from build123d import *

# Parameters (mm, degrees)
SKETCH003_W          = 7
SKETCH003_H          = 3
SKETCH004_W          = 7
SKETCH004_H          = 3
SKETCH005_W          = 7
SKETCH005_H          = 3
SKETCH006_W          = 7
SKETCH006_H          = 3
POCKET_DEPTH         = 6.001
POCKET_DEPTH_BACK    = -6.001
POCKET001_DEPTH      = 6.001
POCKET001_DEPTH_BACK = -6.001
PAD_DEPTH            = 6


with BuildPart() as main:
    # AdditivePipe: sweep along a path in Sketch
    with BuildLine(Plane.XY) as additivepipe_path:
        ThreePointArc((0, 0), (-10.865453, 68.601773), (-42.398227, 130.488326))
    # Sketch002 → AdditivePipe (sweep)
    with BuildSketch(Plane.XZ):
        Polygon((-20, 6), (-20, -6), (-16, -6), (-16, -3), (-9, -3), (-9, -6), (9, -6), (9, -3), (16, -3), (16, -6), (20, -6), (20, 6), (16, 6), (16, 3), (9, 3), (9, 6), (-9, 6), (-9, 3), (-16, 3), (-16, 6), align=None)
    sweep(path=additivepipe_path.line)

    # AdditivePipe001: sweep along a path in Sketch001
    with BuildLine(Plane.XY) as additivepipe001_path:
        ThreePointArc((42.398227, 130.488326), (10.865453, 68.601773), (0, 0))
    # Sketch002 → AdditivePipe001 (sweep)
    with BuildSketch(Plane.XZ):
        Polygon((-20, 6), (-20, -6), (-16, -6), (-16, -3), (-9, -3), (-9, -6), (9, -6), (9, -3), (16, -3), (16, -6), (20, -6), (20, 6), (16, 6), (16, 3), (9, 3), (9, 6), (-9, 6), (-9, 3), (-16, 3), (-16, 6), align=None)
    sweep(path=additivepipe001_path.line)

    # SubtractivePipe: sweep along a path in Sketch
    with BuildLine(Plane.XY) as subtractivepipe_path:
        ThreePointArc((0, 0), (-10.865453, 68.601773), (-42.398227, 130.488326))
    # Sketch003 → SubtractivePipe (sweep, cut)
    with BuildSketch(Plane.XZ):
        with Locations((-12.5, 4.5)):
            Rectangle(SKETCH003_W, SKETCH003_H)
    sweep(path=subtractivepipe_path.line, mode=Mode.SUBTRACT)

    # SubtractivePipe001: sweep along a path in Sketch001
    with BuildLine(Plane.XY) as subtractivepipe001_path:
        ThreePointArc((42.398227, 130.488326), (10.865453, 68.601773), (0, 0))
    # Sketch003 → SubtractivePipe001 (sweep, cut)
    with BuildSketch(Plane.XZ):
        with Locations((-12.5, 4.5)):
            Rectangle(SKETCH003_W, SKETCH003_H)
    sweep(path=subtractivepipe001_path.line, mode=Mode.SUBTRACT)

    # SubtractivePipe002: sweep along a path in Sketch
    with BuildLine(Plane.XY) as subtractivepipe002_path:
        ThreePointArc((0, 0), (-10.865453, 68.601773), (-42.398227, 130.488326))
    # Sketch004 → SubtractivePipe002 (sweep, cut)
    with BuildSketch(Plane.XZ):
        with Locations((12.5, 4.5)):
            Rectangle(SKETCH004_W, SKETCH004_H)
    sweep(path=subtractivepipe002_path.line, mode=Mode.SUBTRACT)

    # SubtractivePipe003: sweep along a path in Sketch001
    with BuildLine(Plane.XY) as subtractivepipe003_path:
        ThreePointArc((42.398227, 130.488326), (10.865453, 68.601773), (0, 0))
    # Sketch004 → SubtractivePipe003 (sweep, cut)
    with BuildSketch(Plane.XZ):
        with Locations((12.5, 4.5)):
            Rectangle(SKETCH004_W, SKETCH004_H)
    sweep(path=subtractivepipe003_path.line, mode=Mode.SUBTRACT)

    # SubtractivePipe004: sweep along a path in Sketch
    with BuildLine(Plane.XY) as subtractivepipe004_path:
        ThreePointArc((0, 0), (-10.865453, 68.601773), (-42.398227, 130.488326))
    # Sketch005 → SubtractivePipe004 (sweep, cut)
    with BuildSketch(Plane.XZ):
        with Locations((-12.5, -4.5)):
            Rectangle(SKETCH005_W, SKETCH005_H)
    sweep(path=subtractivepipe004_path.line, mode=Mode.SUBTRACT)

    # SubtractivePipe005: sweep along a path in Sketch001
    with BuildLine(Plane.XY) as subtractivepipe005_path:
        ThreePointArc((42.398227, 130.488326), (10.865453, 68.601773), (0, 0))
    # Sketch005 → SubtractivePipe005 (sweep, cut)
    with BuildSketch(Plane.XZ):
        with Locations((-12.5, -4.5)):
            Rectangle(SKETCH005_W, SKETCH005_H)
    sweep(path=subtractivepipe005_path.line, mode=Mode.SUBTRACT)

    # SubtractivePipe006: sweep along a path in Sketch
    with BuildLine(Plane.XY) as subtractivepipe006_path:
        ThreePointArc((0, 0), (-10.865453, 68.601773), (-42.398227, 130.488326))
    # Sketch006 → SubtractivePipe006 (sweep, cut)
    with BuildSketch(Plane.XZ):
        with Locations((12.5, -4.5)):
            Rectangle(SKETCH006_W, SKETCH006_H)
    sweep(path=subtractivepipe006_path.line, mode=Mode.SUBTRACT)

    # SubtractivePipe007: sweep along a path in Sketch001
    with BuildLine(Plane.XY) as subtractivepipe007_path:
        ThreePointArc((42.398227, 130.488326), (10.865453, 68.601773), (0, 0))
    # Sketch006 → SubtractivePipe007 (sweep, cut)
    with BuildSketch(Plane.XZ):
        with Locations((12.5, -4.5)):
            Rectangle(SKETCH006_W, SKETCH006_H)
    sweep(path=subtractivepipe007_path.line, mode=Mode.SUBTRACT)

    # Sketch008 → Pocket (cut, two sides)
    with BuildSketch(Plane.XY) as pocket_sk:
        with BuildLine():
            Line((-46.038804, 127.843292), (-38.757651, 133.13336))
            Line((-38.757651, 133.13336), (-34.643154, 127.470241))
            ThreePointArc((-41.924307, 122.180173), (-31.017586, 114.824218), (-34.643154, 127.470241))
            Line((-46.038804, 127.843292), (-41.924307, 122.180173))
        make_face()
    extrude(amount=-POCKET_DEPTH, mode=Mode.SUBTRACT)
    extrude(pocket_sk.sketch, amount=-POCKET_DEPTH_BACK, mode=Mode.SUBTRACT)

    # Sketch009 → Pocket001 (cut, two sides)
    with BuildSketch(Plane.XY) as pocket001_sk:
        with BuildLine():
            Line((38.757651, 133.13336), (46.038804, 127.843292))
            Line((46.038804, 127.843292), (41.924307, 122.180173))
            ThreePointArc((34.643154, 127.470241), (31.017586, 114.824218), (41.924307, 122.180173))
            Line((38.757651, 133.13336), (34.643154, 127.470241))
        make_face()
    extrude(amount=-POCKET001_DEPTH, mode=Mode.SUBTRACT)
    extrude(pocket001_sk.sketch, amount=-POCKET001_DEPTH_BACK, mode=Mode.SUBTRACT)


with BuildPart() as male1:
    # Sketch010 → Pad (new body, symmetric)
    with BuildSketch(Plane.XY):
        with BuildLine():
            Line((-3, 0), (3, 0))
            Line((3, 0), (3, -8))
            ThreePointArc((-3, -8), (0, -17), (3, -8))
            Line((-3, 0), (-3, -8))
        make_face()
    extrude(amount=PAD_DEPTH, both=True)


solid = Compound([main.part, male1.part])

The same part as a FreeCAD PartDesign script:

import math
import FreeCAD as App
import Part
import Sketcher
Q = App.Units.Quantity


def add_polygon(sketch, points):
    """Adds a closed chain of lines whose ends are joined by coincident constraints."""
    first, n = sketch.GeometryCount, len(points)
    for a, b in zip(points, points[1:] + points[:1]):
        sketch.addGeometry(Part.LineSegment(App.Vector(*a, 0), App.Vector(*b, 0)), False)
    for i in range(n):
        sketch.addConstraint(Sketcher.Constraint("Coincident", first + i, 2, first + (i + 1) % n, 1))

doc = App.newDocument("Part")
body = doc.addObject("PartDesign::Body", "Body")

# Sketch on XZ plane
sketch1 = body.newObject("Sketcher::SketchObject", "Sketch")
sketch1.AttachmentSupport = (doc.getObject("XZ_Plane"), [""])
sketch1.MapMode = "FlatFace"
add_polygon(sketch1, [(-20, 6), (-20, -6), (-16, -6), (-16, -3), (-9, -3), (-9, -6), (9, -6), (9, -3), (16, -3), (16, -6), (20, -6), (20, 6), (16, 6), (16, 3), (9, 3), (9, 6), (-9, 6), (-9, 3), (-16, 3), (-16, 6)])  # lines 0-19
sketch1.addConstraint(Sketcher.Constraint("Vertical", 0))
sketch1.addConstraint(Sketcher.Constraint("Horizontal", 1))
sketch1.addConstraint(Sketcher.Constraint("Vertical", 2))
sketch1.addConstraint(Sketcher.Constraint("Horizontal", 3))
sketch1.addConstraint(Sketcher.Constraint("Vertical", 4))
sketch1.addConstraint(Sketcher.Constraint("Horizontal", 5))
sketch1.addConstraint(Sketcher.Constraint("Vertical", 6))
sketch1.addConstraint(Sketcher.Constraint("Horizontal", 7))
sketch1.addConstraint(Sketcher.Constraint("Vertical", 8))
sketch1.addConstraint(Sketcher.Constraint("Horizontal", 9))
sketch1.addConstraint(Sketcher.Constraint("Vertical", 10))
sketch1.addConstraint(Sketcher.Constraint("Horizontal", 11))
sketch1.addConstraint(Sketcher.Constraint("Vertical", 12))
sketch1.addConstraint(Sketcher.Constraint("Horizontal", 13))
sketch1.addConstraint(Sketcher.Constraint("Vertical", 14))
sketch1.addConstraint(Sketcher.Constraint("Horizontal", 15))
sketch1.addConstraint(Sketcher.Constraint("Vertical", 16))
sketch1.addConstraint(Sketcher.Constraint("Horizontal", 17))
sketch1.addConstraint(Sketcher.Constraint("Vertical", 18))
sketch1.addConstraint(Sketcher.Constraint("Horizontal", 19))
sketch1.addConstraint(Sketcher.Constraint("Symmetric", 0, 2, 10, 2, -1, 1))
sketch1.addConstraint(Sketcher.Constraint("Symmetric", 2, 2, 12, 2, -1, 1))
sketch1.addConstraint(Sketcher.Constraint("Symmetric", 4, 2, 14, 2, -1, 1))
sketch1.addConstraint(Sketcher.Constraint("Symmetric", 6, 2, 16, 2, -1, 1))
sketch1.addConstraint(Sketcher.Constraint("Symmetric", 8, 2, 18, 2, -1, 1))
sketch1.addConstraint(Sketcher.Constraint("Symmetric", 3, 2, 6, 2, -2))
sketch1.addConstraint(Sketcher.Constraint("Symmetric", 1, 2, 8, 2, -2))
sketch1.addConstraint(Sketcher.Constraint("Horizontal", 1, 2, 4, 2))
sketch1.addConstraint(Sketcher.Constraint("DistanceX", 1, 1, 1, 2, 4.0))
sketch1.addConstraint(Sketcher.Constraint("DistanceX", 3, 1, 3, 2, 7.0))
sketch1.addConstraint(Sketcher.Constraint("DistanceX", 5, 1, 5, 2, 18.0))
sketch1.addConstraint(Sketcher.Constraint("DistanceY", 0, 2, 0, 1, 12.0))
sketch1.addConstraint(Sketcher.Constraint("DistanceY", 2, 1, 2, 2, 3.0))

# Sketch on XY plane
sketch2 = body.newObject("Sketcher::SketchObject", "Sketch001")
sketch2.AttachmentSupport = (doc.getObject("XY_Plane"), [""])
sketch2.MapMode = "FlatFace"
sketch2.addGeometry(Part.ArcOfCircle(Part.Circle(App.Vector(-221.999993, 0.000002, 0), App.Vector(0, 0, 1), 221.999993), math.radians(-0.000001), math.radians(36)), False)
sketch2.addConstraint(Sketcher.Constraint("Coincident", 0, 1, -1, 1))
sketch2.addConstraint(Sketcher.Constraint("Radius", 0, 221.999993))
sketch2.addConstraint(Sketcher.Constraint("DistanceX", 0, 2, -1, 1, 42.398227))
sketch2.addConstraint(Sketcher.Constraint("DistanceY", -1, 1, 0, 2, 130.488326))
doc.recompute()

additivepipe = body.newObject("PartDesign::AdditivePipe", "AdditivePipe")
additivepipe.Profile = sketch1
additivepipe.Spine = (sketch2, ["Edge1"])

# Sketch on XZ plane
sketch3 = body.newObject("Sketcher::SketchObject", "Sketch002")
sketch3.AttachmentSupport = (doc.getObject("XZ_Plane"), [""])
sketch3.MapMode = "FlatFace"
add_polygon(sketch3, [(-20, 6), (-20, -6), (-16, -6), (-16, -3), (-9, -3), (-9, -6), (9, -6), (9, -3), (16, -3), (16, -6), (20, -6), (20, 6), (16, 6), (16, 3), (9, 3), (9, 6), (-9, 6), (-9, 3), (-16, 3), (-16, 6)])  # lines 0-19
sketch3.addConstraint(Sketcher.Constraint("Vertical", 0))
sketch3.addConstraint(Sketcher.Constraint("Horizontal", 1))
sketch3.addConstraint(Sketcher.Constraint("Vertical", 2))
sketch3.addConstraint(Sketcher.Constraint("Horizontal", 3))
sketch3.addConstraint(Sketcher.Constraint("Vertical", 4))
sketch3.addConstraint(Sketcher.Constraint("Horizontal", 5))
sketch3.addConstraint(Sketcher.Constraint("Vertical", 6))
sketch3.addConstraint(Sketcher.Constraint("Horizontal", 7))
sketch3.addConstraint(Sketcher.Constraint("Vertical", 8))
sketch3.addConstraint(Sketcher.Constraint("Horizontal", 9))
sketch3.addConstraint(Sketcher.Constraint("Vertical", 10))
sketch3.addConstraint(Sketcher.Constraint("Horizontal", 11))
sketch3.addConstraint(Sketcher.Constraint("Vertical", 12))
sketch3.addConstraint(Sketcher.Constraint("Horizontal", 13))
sketch3.addConstraint(Sketcher.Constraint("Vertical", 14))
sketch3.addConstraint(Sketcher.Constraint("Horizontal", 15))
sketch3.addConstraint(Sketcher.Constraint("Vertical", 16))
sketch3.addConstraint(Sketcher.Constraint("Horizontal", 17))
sketch3.addConstraint(Sketcher.Constraint("Vertical", 18))
sketch3.addConstraint(Sketcher.Constraint("Horizontal", 19))
sketch3.addConstraint(Sketcher.Constraint("Symmetric", 0, 2, 10, 2, -1, 1))
sketch3.addConstraint(Sketcher.Constraint("Symmetric", 2, 2, 12, 2, -1, 1))
sketch3.addConstraint(Sketcher.Constraint("Symmetric", 4, 2, 14, 2, -1, 1))
sketch3.addConstraint(Sketcher.Constraint("Symmetric", 6, 2, 16, 2, -1, 1))
sketch3.addConstraint(Sketcher.Constraint("Symmetric", 8, 2, 18, 2, -1, 1))
sketch3.addConstraint(Sketcher.Constraint("Symmetric", 3, 2, 6, 2, -2))
sketch3.addConstraint(Sketcher.Constraint("Symmetric", 1, 2, 8, 2, -2))
sketch3.addConstraint(Sketcher.Constraint("Horizontal", 1, 2, 4, 2))
sketch3.addConstraint(Sketcher.Constraint("DistanceX", 1, 1, 1, 2, 4.0))
sketch3.addConstraint(Sketcher.Constraint("DistanceX", 3, 1, 3, 2, 7.0))
sketch3.addConstraint(Sketcher.Constraint("DistanceX", 5, 1, 5, 2, 18.0))
sketch3.addConstraint(Sketcher.Constraint("DistanceY", 0, 2, 0, 1, 12.0))
sketch3.addConstraint(Sketcher.Constraint("DistanceY", 2, 1, 2, 2, 3.0))

# Sketch on XY plane
sketch4 = body.newObject("Sketcher::SketchObject", "Sketch003")
sketch4.AttachmentSupport = (doc.getObject("XY_Plane"), [""])
sketch4.MapMode = "FlatFace"
sketch4.addGeometry(Part.ArcOfCircle(Part.Circle(App.Vector(221.999993, 0.000002, 0), App.Vector(0, 0, 1), 221.999993), math.radians(144), math.radians(180.000001)), False)
sketch4.addConstraint(Sketcher.Constraint("Coincident", 0, 2, -1, 1))
sketch4.addConstraint(Sketcher.Constraint("Radius", 0, 221.999993))
sketch4.addConstraint(Sketcher.Constraint("DistanceX", -1, 1, 0, 1, 42.398227))
sketch4.addConstraint(Sketcher.Constraint("DistanceY", -1, 1, 0, 1, 130.488326))
doc.recompute()

additivepipe2 = body.newObject("PartDesign::AdditivePipe", "AdditivePipe001")
additivepipe2.Profile = sketch3
additivepipe2.Spine = (sketch4, ["Edge1"])

# Sketch on XZ plane
sketch5 = body.newObject("Sketcher::SketchObject", "Sketch004")
sketch5.AttachmentSupport = (doc.getObject("XZ_Plane"), [""])
sketch5.MapMode = "FlatFace"
add_polygon(sketch5, [(-16, 6), (-16, 3), (-9, 3), (-9, 6)])  # lines 0-3
sketch5.addConstraint(Sketcher.Constraint("Vertical", 0))
sketch5.addConstraint(Sketcher.Constraint("Horizontal", 1))
sketch5.addConstraint(Sketcher.Constraint("Vertical", 2))
sketch5.addConstraint(Sketcher.Constraint("Horizontal", 3))
sketch5.addConstraint(Sketcher.Constraint("DistanceX", 1, 1, 1, 2, 7.0))
sketch5.addConstraint(Sketcher.Constraint("DistanceY", 0, 2, 0, 1, 3.0))
sketch5.addConstraint(Sketcher.Constraint("DistanceX", 0, 2, -1, 1, 16.0))
sketch5.addConstraint(Sketcher.Constraint("DistanceY", -1, 1, 0, 2, 3.0))

# Sketch on XY plane
sketch6 = body.newObject("Sketcher::SketchObject", "Sketch005")
sketch6.AttachmentSupport = (doc.getObject("XY_Plane"), [""])
sketch6.MapMode = "FlatFace"
sketch6.addGeometry(Part.ArcOfCircle(Part.Circle(App.Vector(-221.999993, 0.000002, 0), App.Vector(0, 0, 1), 221.999993), math.radians(-0.000001), math.radians(36)), False)
sketch6.addConstraint(Sketcher.Constraint("Coincident", 0, 1, -1, 1))
sketch6.addConstraint(Sketcher.Constraint("Radius", 0, 221.999993))
sketch6.addConstraint(Sketcher.Constraint("DistanceX", 0, 2, -1, 1, 42.398227))
sketch6.addConstraint(Sketcher.Constraint("DistanceY", -1, 1, 0, 2, 130.488326))
doc.recompute()

subtractivepipe = body.newObject("PartDesign::SubtractivePipe", "SubtractivePipe")
subtractivepipe.Profile = sketch5
subtractivepipe.Spine = (sketch6, ["Edge1"])

# Sketch on XZ plane
sketch7 = body.newObject("Sketcher::SketchObject", "Sketch006")
sketch7.AttachmentSupport = (doc.getObject("XZ_Plane"), [""])
sketch7.MapMode = "FlatFace"
add_polygon(sketch7, [(-16, 6), (-16, 3), (-9, 3), (-9, 6)])  # lines 0-3
sketch7.addConstraint(Sketcher.Constraint("Vertical", 0))
sketch7.addConstraint(Sketcher.Constraint("Horizontal", 1))
sketch7.addConstraint(Sketcher.Constraint("Vertical", 2))
sketch7.addConstraint(Sketcher.Constraint("Horizontal", 3))
sketch7.addConstraint(Sketcher.Constraint("DistanceX", 1, 1, 1, 2, 7.0))
sketch7.addConstraint(Sketcher.Constraint("DistanceY", 0, 2, 0, 1, 3.0))
sketch7.addConstraint(Sketcher.Constraint("DistanceX", 0, 2, -1, 1, 16.0))
sketch7.addConstraint(Sketcher.Constraint("DistanceY", -1, 1, 0, 2, 3.0))

# Sketch on XY plane
sketch8 = body.newObject("Sketcher::SketchObject", "Sketch007")
sketch8.AttachmentSupport = (doc.getObject("XY_Plane"), [""])
sketch8.MapMode = "FlatFace"
sketch8.addGeometry(Part.ArcOfCircle(Part.Circle(App.Vector(221.999993, 0.000002, 0), App.Vector(0, 0, 1), 221.999993), math.radians(144), math.radians(180.000001)), False)
sketch8.addConstraint(Sketcher.Constraint("Coincident", 0, 2, -1, 1))
sketch8.addConstraint(Sketcher.Constraint("Radius", 0, 221.999993))
sketch8.addConstraint(Sketcher.Constraint("DistanceX", -1, 1, 0, 1, 42.398227))
sketch8.addConstraint(Sketcher.Constraint("DistanceY", -1, 1, 0, 1, 130.488326))
doc.recompute()

subtractivepipe2 = body.newObject("PartDesign::SubtractivePipe", "SubtractivePipe001")
subtractivepipe2.Profile = sketch7
subtractivepipe2.Spine = (sketch8, ["Edge1"])

# Sketch on XZ plane
sketch9 = body.newObject("Sketcher::SketchObject", "Sketch008")
sketch9.AttachmentSupport = (doc.getObject("XZ_Plane"), [""])
sketch9.MapMode = "FlatFace"
add_polygon(sketch9, [(9, 6), (9, 3), (16, 3), (16, 6)])  # lines 0-3
sketch9.addConstraint(Sketcher.Constraint("Vertical", 0))
sketch9.addConstraint(Sketcher.Constraint("Horizontal", 1))
sketch9.addConstraint(Sketcher.Constraint("Vertical", 2))
sketch9.addConstraint(Sketcher.Constraint("Horizontal", 3))
sketch9.addConstraint(Sketcher.Constraint("DistanceX", 1, 1, 1, 2, 7.0))
sketch9.addConstraint(Sketcher.Constraint("DistanceY", 0, 2, 0, 1, 3.0))
sketch9.addConstraint(Sketcher.Constraint("DistanceX", -1, 1, 0, 2, 9.0))
sketch9.addConstraint(Sketcher.Constraint("DistanceY", -1, 1, 0, 2, 3.0))

# Sketch on XY plane
sketch10 = body.newObject("Sketcher::SketchObject", "Sketch009")
sketch10.AttachmentSupport = (doc.getObject("XY_Plane"), [""])
sketch10.MapMode = "FlatFace"
sketch10.addGeometry(Part.ArcOfCircle(Part.Circle(App.Vector(-221.999993, 0.000002, 0), App.Vector(0, 0, 1), 221.999993), math.radians(-0.000001), math.radians(36)), False)
sketch10.addConstraint(Sketcher.Constraint("Coincident", 0, 1, -1, 1))
sketch10.addConstraint(Sketcher.Constraint("Radius", 0, 221.999993))
sketch10.addConstraint(Sketcher.Constraint("DistanceX", 0, 2, -1, 1, 42.398227))
sketch10.addConstraint(Sketcher.Constraint("DistanceY", -1, 1, 0, 2, 130.488326))
doc.recompute()

subtractivepipe3 = body.newObject("PartDesign::SubtractivePipe", "SubtractivePipe002")
subtractivepipe3.Profile = sketch9
subtractivepipe3.Spine = (sketch10, ["Edge1"])

# Sketch on XZ plane
sketch11 = body.newObject("Sketcher::SketchObject", "Sketch010")
sketch11.AttachmentSupport = (doc.getObject("XZ_Plane"), [""])
sketch11.MapMode = "FlatFace"
add_polygon(sketch11, [(9, 6), (9, 3), (16, 3), (16, 6)])  # lines 0-3
sketch11.addConstraint(Sketcher.Constraint("Vertical", 0))
sketch11.addConstraint(Sketcher.Constraint("Horizontal", 1))
sketch11.addConstraint(Sketcher.Constraint("Vertical", 2))
sketch11.addConstraint(Sketcher.Constraint("Horizontal", 3))
sketch11.addConstraint(Sketcher.Constraint("DistanceX", 1, 1, 1, 2, 7.0))
sketch11.addConstraint(Sketcher.Constraint("DistanceY", 0, 2, 0, 1, 3.0))
sketch11.addConstraint(Sketcher.Constraint("DistanceX", -1, 1, 0, 2, 9.0))
sketch11.addConstraint(Sketcher.Constraint("DistanceY", -1, 1, 0, 2, 3.0))

# Sketch on XY plane
sketch12 = body.newObject("Sketcher::SketchObject", "Sketch011")
sketch12.AttachmentSupport = (doc.getObject("XY_Plane"), [""])
sketch12.MapMode = "FlatFace"
sketch12.addGeometry(Part.ArcOfCircle(Part.Circle(App.Vector(221.999993, 0.000002, 0), App.Vector(0, 0, 1), 221.999993), math.radians(144), math.radians(180.000001)), False)
sketch12.addConstraint(Sketcher.Constraint("Coincident", 0, 2, -1, 1))
sketch12.addConstraint(Sketcher.Constraint("Radius", 0, 221.999993))
sketch12.addConstraint(Sketcher.Constraint("DistanceX", -1, 1, 0, 1, 42.398227))
sketch12.addConstraint(Sketcher.Constraint("DistanceY", -1, 1, 0, 1, 130.488326))
doc.recompute()

subtractivepipe4 = body.newObject("PartDesign::SubtractivePipe", "SubtractivePipe003")
subtractivepipe4.Profile = sketch11
subtractivepipe4.Spine = (sketch12, ["Edge1"])

# Sketch on XZ plane
sketch13 = body.newObject("Sketcher::SketchObject", "Sketch012")
sketch13.AttachmentSupport = (doc.getObject("XZ_Plane"), [""])
sketch13.MapMode = "FlatFace"
add_polygon(sketch13, [(-16, -3), (-16, -6), (-9, -6), (-9, -3)])  # lines 0-3
sketch13.addConstraint(Sketcher.Constraint("Vertical", 0))
sketch13.addConstraint(Sketcher.Constraint("Horizontal", 1))
sketch13.addConstraint(Sketcher.Constraint("Vertical", 2))
sketch13.addConstraint(Sketcher.Constraint("Horizontal", 3))
sketch13.addConstraint(Sketcher.Constraint("DistanceX", 1, 1, 1, 2, 7.0))
sketch13.addConstraint(Sketcher.Constraint("DistanceY", 0, 2, 0, 1, 3.0))
sketch13.addConstraint(Sketcher.Constraint("DistanceX", 0, 2, -1, 1, 16.0))
sketch13.addConstraint(Sketcher.Constraint("DistanceY", 0, 2, -1, 1, 6.0))

# Sketch on XY plane
sketch14 = body.newObject("Sketcher::SketchObject", "Sketch013")
sketch14.AttachmentSupport = (doc.getObject("XY_Plane"), [""])
sketch14.MapMode = "FlatFace"
sketch14.addGeometry(Part.ArcOfCircle(Part.Circle(App.Vector(-221.999993, 0.000002, 0), App.Vector(0, 0, 1), 221.999993), math.radians(-0.000001), math.radians(36)), False)
sketch14.addConstraint(Sketcher.Constraint("Coincident", 0, 1, -1, 1))
sketch14.addConstraint(Sketcher.Constraint("Radius", 0, 221.999993))
sketch14.addConstraint(Sketcher.Constraint("DistanceX", 0, 2, -1, 1, 42.398227))
sketch14.addConstraint(Sketcher.Constraint("DistanceY", -1, 1, 0, 2, 130.488326))
doc.recompute()

subtractivepipe5 = body.newObject("PartDesign::SubtractivePipe", "SubtractivePipe004")
subtractivepipe5.Profile = sketch13
subtractivepipe5.Spine = (sketch14, ["Edge1"])

# Sketch on XZ plane
sketch15 = body.newObject("Sketcher::SketchObject", "Sketch014")
sketch15.AttachmentSupport = (doc.getObject("XZ_Plane"), [""])
sketch15.MapMode = "FlatFace"
add_polygon(sketch15, [(-16, -3), (-16, -6), (-9, -6), (-9, -3)])  # lines 0-3
sketch15.addConstraint(Sketcher.Constraint("Vertical", 0))
sketch15.addConstraint(Sketcher.Constraint("Horizontal", 1))
sketch15.addConstraint(Sketcher.Constraint("Vertical", 2))
sketch15.addConstraint(Sketcher.Constraint("Horizontal", 3))
sketch15.addConstraint(Sketcher.Constraint("DistanceX", 1, 1, 1, 2, 7.0))
sketch15.addConstraint(Sketcher.Constraint("DistanceY", 0, 2, 0, 1, 3.0))
sketch15.addConstraint(Sketcher.Constraint("DistanceX", 0, 2, -1, 1, 16.0))
sketch15.addConstraint(Sketcher.Constraint("DistanceY", 0, 2, -1, 1, 6.0))

# Sketch on XY plane
sketch16 = body.newObject("Sketcher::SketchObject", "Sketch015")
sketch16.AttachmentSupport = (doc.getObject("XY_Plane"), [""])
sketch16.MapMode = "FlatFace"
sketch16.addGeometry(Part.ArcOfCircle(Part.Circle(App.Vector(221.999993, 0.000002, 0), App.Vector(0, 0, 1), 221.999993), math.radians(144), math.radians(180.000001)), False)
sketch16.addConstraint(Sketcher.Constraint("Coincident", 0, 2, -1, 1))
sketch16.addConstraint(Sketcher.Constraint("Radius", 0, 221.999993))
sketch16.addConstraint(Sketcher.Constraint("DistanceX", -1, 1, 0, 1, 42.398227))
sketch16.addConstraint(Sketcher.Constraint("DistanceY", -1, 1, 0, 1, 130.488326))
doc.recompute()

subtractivepipe6 = body.newObject("PartDesign::SubtractivePipe", "SubtractivePipe005")
subtractivepipe6.Profile = sketch15
subtractivepipe6.Spine = (sketch16, ["Edge1"])

# Sketch on XZ plane
sketch17 = body.newObject("Sketcher::SketchObject", "Sketch016")
sketch17.AttachmentSupport = (doc.getObject("XZ_Plane"), [""])
sketch17.MapMode = "FlatFace"
add_polygon(sketch17, [(9, -3), (9, -6), (16, -6), (16, -3)])  # lines 0-3
sketch17.addConstraint(Sketcher.Constraint("Vertical", 0))
sketch17.addConstraint(Sketcher.Constraint("Horizontal", 1))
sketch17.addConstraint(Sketcher.Constraint("Vertical", 2))
sketch17.addConstraint(Sketcher.Constraint("Horizontal", 3))
sketch17.addConstraint(Sketcher.Constraint("DistanceX", 1, 1, 1, 2, 7.0))
sketch17.addConstraint(Sketcher.Constraint("DistanceY", 0, 2, 0, 1, 3.0))
sketch17.addConstraint(Sketcher.Constraint("DistanceX", -1, 1, 0, 2, 9.0))
sketch17.addConstraint(Sketcher.Constraint("DistanceY", 0, 2, -1, 1, 6.0))

# Sketch on XY plane
sketch18 = body.newObject("Sketcher::SketchObject", "Sketch017")
sketch18.AttachmentSupport = (doc.getObject("XY_Plane"), [""])
sketch18.MapMode = "FlatFace"
sketch18.addGeometry(Part.ArcOfCircle(Part.Circle(App.Vector(-221.999993, 0.000002, 0), App.Vector(0, 0, 1), 221.999993), math.radians(-0.000001), math.radians(36)), False)
sketch18.addConstraint(Sketcher.Constraint("Coincident", 0, 1, -1, 1))
sketch18.addConstraint(Sketcher.Constraint("Radius", 0, 221.999993))
sketch18.addConstraint(Sketcher.Constraint("DistanceX", 0, 2, -1, 1, 42.398227))
sketch18.addConstraint(Sketcher.Constraint("DistanceY", -1, 1, 0, 2, 130.488326))
doc.recompute()

subtractivepipe7 = body.newObject("PartDesign::SubtractivePipe", "SubtractivePipe006")
subtractivepipe7.Profile = sketch17
subtractivepipe7.Spine = (sketch18, ["Edge1"])

# Sketch on XZ plane
sketch19 = body.newObject("Sketcher::SketchObject", "Sketch018")
sketch19.AttachmentSupport = (doc.getObject("XZ_Plane"), [""])
sketch19.MapMode = "FlatFace"
add_polygon(sketch19, [(9, -3), (9, -6), (16, -6), (16, -3)])  # lines 0-3
sketch19.addConstraint(Sketcher.Constraint("Vertical", 0))
sketch19.addConstraint(Sketcher.Constraint("Horizontal", 1))
sketch19.addConstraint(Sketcher.Constraint("Vertical", 2))
sketch19.addConstraint(Sketcher.Constraint("Horizontal", 3))
sketch19.addConstraint(Sketcher.Constraint("DistanceX", 1, 1, 1, 2, 7.0))
sketch19.addConstraint(Sketcher.Constraint("DistanceY", 0, 2, 0, 1, 3.0))
sketch19.addConstraint(Sketcher.Constraint("DistanceX", -1, 1, 0, 2, 9.0))
sketch19.addConstraint(Sketcher.Constraint("DistanceY", 0, 2, -1, 1, 6.0))

# Sketch on XY plane
sketch20 = body.newObject("Sketcher::SketchObject", "Sketch019")
sketch20.AttachmentSupport = (doc.getObject("XY_Plane"), [""])
sketch20.MapMode = "FlatFace"
sketch20.addGeometry(Part.ArcOfCircle(Part.Circle(App.Vector(221.999993, 0.000002, 0), App.Vector(0, 0, 1), 221.999993), math.radians(144), math.radians(180.000001)), False)
sketch20.addConstraint(Sketcher.Constraint("Coincident", 0, 2, -1, 1))
sketch20.addConstraint(Sketcher.Constraint("Radius", 0, 221.999993))
sketch20.addConstraint(Sketcher.Constraint("DistanceX", -1, 1, 0, 1, 42.398227))
sketch20.addConstraint(Sketcher.Constraint("DistanceY", -1, 1, 0, 1, 130.488326))
doc.recompute()

subtractivepipe8 = body.newObject("PartDesign::SubtractivePipe", "SubtractivePipe007")
subtractivepipe8.Profile = sketch19
subtractivepipe8.Spine = (sketch20, ["Edge1"])

# Sketch on XY plane
sketch21 = body.newObject("Sketcher::SketchObject", "Sketch020")
sketch21.AttachmentSupport = (doc.getObject("XY_Plane"), [""])
sketch21.MapMode = "FlatFace"
sketch21.addGeometry(Part.LineSegment(App.Vector(-38.757651, 133.13336, 0), App.Vector(-46.038804, 127.843292, 0)), False)
sketch21.addGeometry(Part.LineSegment(App.Vector(-46.038804, 127.843292, 0), App.Vector(-41.924307, 122.180173, 0)), False)
sketch21.addGeometry(Part.ArcOfCircle(Part.Circle(App.Vector(-35.132083, 120.487337, 0), App.Vector(0, 0, 1), 7), math.radians(166.005206), math.radians(445.994801)), False)
sketch21.addGeometry(Part.LineSegment(App.Vector(-34.643154, 127.470241, 0), App.Vector(-38.757651, 133.13336, 0)), False)
sketch21.addConstraint(Sketcher.Constraint("Coincident", 0, 2, 1, 1))
sketch21.addConstraint(Sketcher.Constraint("Coincident", 1, 2, 2, 1))
sketch21.addConstraint(Sketcher.Constraint("Coincident", 2, 2, 3, 1))
sketch21.addConstraint(Sketcher.Constraint("Coincident", 3, 2, 0, 1))
sketch21.addConstraint(Sketcher.Constraint("Perpendicular", 0, 1))
sketch21.addConstraint(Sketcher.Constraint("Parallel", 1, 3))
sketch21.addConstraint(Sketcher.Constraint("Equal", 1, 3))
sketch21.addConstraint(Sketcher.Constraint("Radius", 2, 7.0))
sketch21.addConstraint(Sketcher.Constraint("Angle", 0, Q("-143.999996 deg")))
sketch21.addConstraint(Sketcher.Constraint("Distance", 0, 9.0))
sketch21.addConstraint(Sketcher.Constraint("Distance", 1, 7.0))
sketch21.addConstraint(Sketcher.Constraint("DistanceY", -1, 1, 2, 2, 127.470241))
sketch21.addConstraint(Sketcher.Constraint("DistanceX", 3, 2, -1, 1, 38.757651))
pocket1 = body.newObject("PartDesign::Pocket", "Pocket")
pocket1.Profile = sketch21
pocket1.Type = "ThroughAll"
pocket1.Midplane = True

# Sketch on XY plane
sketch22 = body.newObject("Sketcher::SketchObject", "Sketch021")
sketch22.AttachmentSupport = (doc.getObject("XY_Plane"), [""])
sketch22.MapMode = "FlatFace"
sketch22.addGeometry(Part.LineSegment(App.Vector(46.038804, 127.843292, 0), App.Vector(38.757651, 133.13336, 0)), False)
sketch22.addGeometry(Part.LineSegment(App.Vector(38.757651, 133.13336, 0), App.Vector(34.643154, 127.470241, 0)), False)
sketch22.addGeometry(Part.ArcOfCircle(Part.Circle(App.Vector(35.132083, 120.487337, 0), App.Vector(0, 0, 1), 7), math.radians(94.005199), math.radians(373.994794)), False)
sketch22.addGeometry(Part.LineSegment(App.Vector(41.924307, 122.180173, 0), App.Vector(46.038804, 127.843292, 0)), False)
sketch22.addConstraint(Sketcher.Constraint("Coincident", 0, 2, 1, 1))
sketch22.addConstraint(Sketcher.Constraint("Coincident", 1, 2, 2, 1))
sketch22.addConstraint(Sketcher.Constraint("Coincident", 2, 2, 3, 1))
sketch22.addConstraint(Sketcher.Constraint("Coincident", 3, 2, 0, 1))
sketch22.addConstraint(Sketcher.Constraint("Perpendicular", 0, 1))
sketch22.addConstraint(Sketcher.Constraint("Parallel", 1, 3))
sketch22.addConstraint(Sketcher.Constraint("Equal", 1, 3))
sketch22.addConstraint(Sketcher.Constraint("Radius", 2, 7.0))
sketch22.addConstraint(Sketcher.Constraint("Angle", 0, Q("143.999996 deg")))
sketch22.addConstraint(Sketcher.Constraint("Distance", 0, 9.0))
sketch22.addConstraint(Sketcher.Constraint("Distance", 1, 7.0))
sketch22.addConstraint(Sketcher.Constraint("DistanceX", -1, 1, 0, 2, 38.757651))
sketch22.addConstraint(Sketcher.Constraint("DistanceY", -1, 1, 0, 2, 133.13336))
pocket2 = body.newObject("PartDesign::Pocket", "Pocket001")
pocket2.Profile = sketch22
pocket2.Type = "ThroughAll"
pocket2.Midplane = True
body2 = doc.addObject("PartDesign::Body", "Body001")

# Sketch on XY plane
sketch23 = body2.newObject("Sketcher::SketchObject", "Sketch022")
sketch23.AttachmentSupport = (doc.getObject("XY_Plane001"), [""])
sketch23.MapMode = "FlatFace"
sketch23.addGeometry(Part.LineSegment(App.Vector(3, 0, 0), App.Vector(-3, 0, 0)), False)
sketch23.addGeometry(Part.LineSegment(App.Vector(-3, 0, 0), App.Vector(-3, -8, 0)), False)
sketch23.addGeometry(Part.ArcOfCircle(Part.Circle(App.Vector(0, -12, 0), App.Vector(0, 0, 1), 5), math.radians(126.869898), math.radians(413.130102)), False)
sketch23.addGeometry(Part.LineSegment(App.Vector(3, -8, 0), App.Vector(3, 0, 0)), False)
sketch23.addConstraint(Sketcher.Constraint("Coincident", 0, 2, 1, 1))
sketch23.addConstraint(Sketcher.Constraint("Coincident", 1, 2, 2, 1))
sketch23.addConstraint(Sketcher.Constraint("Coincident", 2, 2, 3, 1))
sketch23.addConstraint(Sketcher.Constraint("Coincident", 3, 2, 0, 1))
sketch23.addConstraint(Sketcher.Constraint("Horizontal", 0))
sketch23.addConstraint(Sketcher.Constraint("Vertical", 1))
sketch23.addConstraint(Sketcher.Constraint("Vertical", 3))
sketch23.addConstraint(Sketcher.Constraint("Symmetric", 0, 2, 3, 2, -1, 1))
sketch23.addConstraint(Sketcher.Constraint("PointOnObject", 2, 3, -2))
sketch23.addConstraint(Sketcher.Constraint("Radius", 2, 5.0))
sketch23.addConstraint(Sketcher.Constraint("DistanceX", 0, 2, 0, 1, 6.0))
sketch23.addConstraint(Sketcher.Constraint("DistanceY", 1, 2, 1, 1, 8.0))
pad1 = body2.newObject("PartDesign::Pad", "Pad")
pad1.Profile = sketch23
pad1.Length = 12
pad1.Midplane = True

doc.recompute()
